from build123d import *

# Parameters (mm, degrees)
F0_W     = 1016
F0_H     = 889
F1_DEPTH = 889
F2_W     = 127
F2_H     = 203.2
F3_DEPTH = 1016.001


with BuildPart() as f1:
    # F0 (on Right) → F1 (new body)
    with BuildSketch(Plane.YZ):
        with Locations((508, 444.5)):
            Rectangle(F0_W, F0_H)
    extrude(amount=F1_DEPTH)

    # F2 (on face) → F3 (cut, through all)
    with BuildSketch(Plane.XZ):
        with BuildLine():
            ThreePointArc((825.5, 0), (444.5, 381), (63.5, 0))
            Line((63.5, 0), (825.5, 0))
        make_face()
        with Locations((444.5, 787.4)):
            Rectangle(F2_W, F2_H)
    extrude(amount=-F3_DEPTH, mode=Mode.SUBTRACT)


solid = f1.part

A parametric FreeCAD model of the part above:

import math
import FreeCAD as App
import Part
import Sketcher
Q = App.Units.Quantity

doc = App.newDocument("Part")
body = doc.addObject("PartDesign::Body", "Body")

sketch1 = body.newObject("Sketcher::SketchObject", "Sketch")
sketch1.AttachmentSupport = (doc.getObject("YZ_Plane"), [""])
sketch1.MapMode = "FlatFace"
sketch1.addGeometry([
    Part.LineSegment(App.Vector(0, 889, 0), App.Vector(0, 0, 0)),
    Part.LineSegment(App.Vector(0, 0, 0), App.Vector(1016, 0, 0)),
    Part.LineSegment(App.Vector(1016, 0, 0), App.Vector(1016, 889, 0)),
    Part.LineSegment(App.Vector(1016, 889, 0), App.Vector(0, 889, 0)),
], False)
sketch1.addConstraint([
    Sketcher.Constraint("Coincident", 0, 2, 1, 1),
    Sketcher.Constraint("Coincident", 1, 2, 2, 1),
    Sketcher.Constraint("Coincident", 2, 2, 3, 1),
    Sketcher.Constraint("Coincident", 3, 2, 0, 1),
    Sketcher.Constraint("Vertical", 0),
    Sketcher.Constraint("Horizontal", 1),
    Sketcher.Constraint("Vertical", 2),
    Sketcher.Constraint("Horizontal", 3),
    Sketcher.Constraint("Coincident", 0, 2, -1, 1),
    Sketcher.Constraint("DistanceX", 1, 1, 1, 2, Q("40 in")),
    Sketcher.Constraint("DistanceY", 0, 2, 0, 1, Q("35 in")),
])
pad1 = body.newObject("PartDesign::Pad", "Pad")
pad1.Profile = sketch1
pad1.Length = Q("35 in")

sketch2 = body.newObject("Sketcher::SketchObject", "Sketch001")
sketch2.AttachmentSupport = (doc.getObject("XZ_Plane"), [""])
sketch2.MapMode = "FlatFace"
sketch2.addGeometry([
    Part.ArcOfCircle(Part.Circle(App.Vector(444.5, 0, 0), App.Vector(0, 0, 1), 381), math.radians(0), math.radians(180)),
    Part.LineSegment(App.Vector(63.5, 0, 0), App.Vector(825.5, 0, 0)),
    Part.LineSegment(App.Vector(381, 889, 0), App.Vector(381, 685.8, 0)),
    Part.LineSegment(App.Vector(381, 685.8, 0), App.Vector(508, 685.8, 0)),
    Part.LineSegment(App.Vector(508, 685.8, 0), App.Vector(508, 889, 0)),
    Part.LineSegment(App.Vector(508, 889, 0), App.Vector(381, 889, 0)),
], False)
sketch2.addConstraint([
    Sketcher.Constraint("Coincident", 0, 1, 1, 2),
    Sketcher.Constraint("Coincident", 1, 1, 0, 2),
    Sketcher.Constraint("Coincident", 2, 2, 3, 1),
    Sketcher.Constraint("Coincident", 3, 2, 4, 1),
    Sketcher.Constraint("Coincident", 4, 2, 5, 1),
    Sketcher.Constraint("Coincident", 5, 2, 2, 1),
    Sketcher.Constraint("Horizontal", 1),
    Sketcher.Constraint("Vertical", 2),
    Sketcher.Constraint("Horizontal", 3),
    Sketcher.Constraint("Vertical", 4),
    Sketcher.Constraint("Horizontal", 5),
    Sketcher.Constraint("PointOnObject", 0, 3, -1),
    Sketcher.Constraint("PointOnObject", 1, 1, -1),
    Sketcher.Constraint("Radius", 0, Q("15 in")),
    Sketcher.Constraint("DistanceX", 3, 1, 3, 2, Q("5 in")),
    Sketcher.Constraint("DistanceY", 2, 2, 2, 1, Q("8 in")),
    Sketcher.Constraint("DistanceX", -1, 1, 2, 2, Q("15 in")),
    Sketcher.Constraint("DistanceY", -1, 1, 2, 2, Q("27 in")),
    Sketcher.Constraint("DistanceX", -1, 1, 0, 3, Q("17.5 in")),
])
pocket1 = body.newObject("PartDesign::Pocket", "Pocket")
pocket1.Profile = sketch2
pocket1.Type = "ThroughAll"

doc.recompute()
